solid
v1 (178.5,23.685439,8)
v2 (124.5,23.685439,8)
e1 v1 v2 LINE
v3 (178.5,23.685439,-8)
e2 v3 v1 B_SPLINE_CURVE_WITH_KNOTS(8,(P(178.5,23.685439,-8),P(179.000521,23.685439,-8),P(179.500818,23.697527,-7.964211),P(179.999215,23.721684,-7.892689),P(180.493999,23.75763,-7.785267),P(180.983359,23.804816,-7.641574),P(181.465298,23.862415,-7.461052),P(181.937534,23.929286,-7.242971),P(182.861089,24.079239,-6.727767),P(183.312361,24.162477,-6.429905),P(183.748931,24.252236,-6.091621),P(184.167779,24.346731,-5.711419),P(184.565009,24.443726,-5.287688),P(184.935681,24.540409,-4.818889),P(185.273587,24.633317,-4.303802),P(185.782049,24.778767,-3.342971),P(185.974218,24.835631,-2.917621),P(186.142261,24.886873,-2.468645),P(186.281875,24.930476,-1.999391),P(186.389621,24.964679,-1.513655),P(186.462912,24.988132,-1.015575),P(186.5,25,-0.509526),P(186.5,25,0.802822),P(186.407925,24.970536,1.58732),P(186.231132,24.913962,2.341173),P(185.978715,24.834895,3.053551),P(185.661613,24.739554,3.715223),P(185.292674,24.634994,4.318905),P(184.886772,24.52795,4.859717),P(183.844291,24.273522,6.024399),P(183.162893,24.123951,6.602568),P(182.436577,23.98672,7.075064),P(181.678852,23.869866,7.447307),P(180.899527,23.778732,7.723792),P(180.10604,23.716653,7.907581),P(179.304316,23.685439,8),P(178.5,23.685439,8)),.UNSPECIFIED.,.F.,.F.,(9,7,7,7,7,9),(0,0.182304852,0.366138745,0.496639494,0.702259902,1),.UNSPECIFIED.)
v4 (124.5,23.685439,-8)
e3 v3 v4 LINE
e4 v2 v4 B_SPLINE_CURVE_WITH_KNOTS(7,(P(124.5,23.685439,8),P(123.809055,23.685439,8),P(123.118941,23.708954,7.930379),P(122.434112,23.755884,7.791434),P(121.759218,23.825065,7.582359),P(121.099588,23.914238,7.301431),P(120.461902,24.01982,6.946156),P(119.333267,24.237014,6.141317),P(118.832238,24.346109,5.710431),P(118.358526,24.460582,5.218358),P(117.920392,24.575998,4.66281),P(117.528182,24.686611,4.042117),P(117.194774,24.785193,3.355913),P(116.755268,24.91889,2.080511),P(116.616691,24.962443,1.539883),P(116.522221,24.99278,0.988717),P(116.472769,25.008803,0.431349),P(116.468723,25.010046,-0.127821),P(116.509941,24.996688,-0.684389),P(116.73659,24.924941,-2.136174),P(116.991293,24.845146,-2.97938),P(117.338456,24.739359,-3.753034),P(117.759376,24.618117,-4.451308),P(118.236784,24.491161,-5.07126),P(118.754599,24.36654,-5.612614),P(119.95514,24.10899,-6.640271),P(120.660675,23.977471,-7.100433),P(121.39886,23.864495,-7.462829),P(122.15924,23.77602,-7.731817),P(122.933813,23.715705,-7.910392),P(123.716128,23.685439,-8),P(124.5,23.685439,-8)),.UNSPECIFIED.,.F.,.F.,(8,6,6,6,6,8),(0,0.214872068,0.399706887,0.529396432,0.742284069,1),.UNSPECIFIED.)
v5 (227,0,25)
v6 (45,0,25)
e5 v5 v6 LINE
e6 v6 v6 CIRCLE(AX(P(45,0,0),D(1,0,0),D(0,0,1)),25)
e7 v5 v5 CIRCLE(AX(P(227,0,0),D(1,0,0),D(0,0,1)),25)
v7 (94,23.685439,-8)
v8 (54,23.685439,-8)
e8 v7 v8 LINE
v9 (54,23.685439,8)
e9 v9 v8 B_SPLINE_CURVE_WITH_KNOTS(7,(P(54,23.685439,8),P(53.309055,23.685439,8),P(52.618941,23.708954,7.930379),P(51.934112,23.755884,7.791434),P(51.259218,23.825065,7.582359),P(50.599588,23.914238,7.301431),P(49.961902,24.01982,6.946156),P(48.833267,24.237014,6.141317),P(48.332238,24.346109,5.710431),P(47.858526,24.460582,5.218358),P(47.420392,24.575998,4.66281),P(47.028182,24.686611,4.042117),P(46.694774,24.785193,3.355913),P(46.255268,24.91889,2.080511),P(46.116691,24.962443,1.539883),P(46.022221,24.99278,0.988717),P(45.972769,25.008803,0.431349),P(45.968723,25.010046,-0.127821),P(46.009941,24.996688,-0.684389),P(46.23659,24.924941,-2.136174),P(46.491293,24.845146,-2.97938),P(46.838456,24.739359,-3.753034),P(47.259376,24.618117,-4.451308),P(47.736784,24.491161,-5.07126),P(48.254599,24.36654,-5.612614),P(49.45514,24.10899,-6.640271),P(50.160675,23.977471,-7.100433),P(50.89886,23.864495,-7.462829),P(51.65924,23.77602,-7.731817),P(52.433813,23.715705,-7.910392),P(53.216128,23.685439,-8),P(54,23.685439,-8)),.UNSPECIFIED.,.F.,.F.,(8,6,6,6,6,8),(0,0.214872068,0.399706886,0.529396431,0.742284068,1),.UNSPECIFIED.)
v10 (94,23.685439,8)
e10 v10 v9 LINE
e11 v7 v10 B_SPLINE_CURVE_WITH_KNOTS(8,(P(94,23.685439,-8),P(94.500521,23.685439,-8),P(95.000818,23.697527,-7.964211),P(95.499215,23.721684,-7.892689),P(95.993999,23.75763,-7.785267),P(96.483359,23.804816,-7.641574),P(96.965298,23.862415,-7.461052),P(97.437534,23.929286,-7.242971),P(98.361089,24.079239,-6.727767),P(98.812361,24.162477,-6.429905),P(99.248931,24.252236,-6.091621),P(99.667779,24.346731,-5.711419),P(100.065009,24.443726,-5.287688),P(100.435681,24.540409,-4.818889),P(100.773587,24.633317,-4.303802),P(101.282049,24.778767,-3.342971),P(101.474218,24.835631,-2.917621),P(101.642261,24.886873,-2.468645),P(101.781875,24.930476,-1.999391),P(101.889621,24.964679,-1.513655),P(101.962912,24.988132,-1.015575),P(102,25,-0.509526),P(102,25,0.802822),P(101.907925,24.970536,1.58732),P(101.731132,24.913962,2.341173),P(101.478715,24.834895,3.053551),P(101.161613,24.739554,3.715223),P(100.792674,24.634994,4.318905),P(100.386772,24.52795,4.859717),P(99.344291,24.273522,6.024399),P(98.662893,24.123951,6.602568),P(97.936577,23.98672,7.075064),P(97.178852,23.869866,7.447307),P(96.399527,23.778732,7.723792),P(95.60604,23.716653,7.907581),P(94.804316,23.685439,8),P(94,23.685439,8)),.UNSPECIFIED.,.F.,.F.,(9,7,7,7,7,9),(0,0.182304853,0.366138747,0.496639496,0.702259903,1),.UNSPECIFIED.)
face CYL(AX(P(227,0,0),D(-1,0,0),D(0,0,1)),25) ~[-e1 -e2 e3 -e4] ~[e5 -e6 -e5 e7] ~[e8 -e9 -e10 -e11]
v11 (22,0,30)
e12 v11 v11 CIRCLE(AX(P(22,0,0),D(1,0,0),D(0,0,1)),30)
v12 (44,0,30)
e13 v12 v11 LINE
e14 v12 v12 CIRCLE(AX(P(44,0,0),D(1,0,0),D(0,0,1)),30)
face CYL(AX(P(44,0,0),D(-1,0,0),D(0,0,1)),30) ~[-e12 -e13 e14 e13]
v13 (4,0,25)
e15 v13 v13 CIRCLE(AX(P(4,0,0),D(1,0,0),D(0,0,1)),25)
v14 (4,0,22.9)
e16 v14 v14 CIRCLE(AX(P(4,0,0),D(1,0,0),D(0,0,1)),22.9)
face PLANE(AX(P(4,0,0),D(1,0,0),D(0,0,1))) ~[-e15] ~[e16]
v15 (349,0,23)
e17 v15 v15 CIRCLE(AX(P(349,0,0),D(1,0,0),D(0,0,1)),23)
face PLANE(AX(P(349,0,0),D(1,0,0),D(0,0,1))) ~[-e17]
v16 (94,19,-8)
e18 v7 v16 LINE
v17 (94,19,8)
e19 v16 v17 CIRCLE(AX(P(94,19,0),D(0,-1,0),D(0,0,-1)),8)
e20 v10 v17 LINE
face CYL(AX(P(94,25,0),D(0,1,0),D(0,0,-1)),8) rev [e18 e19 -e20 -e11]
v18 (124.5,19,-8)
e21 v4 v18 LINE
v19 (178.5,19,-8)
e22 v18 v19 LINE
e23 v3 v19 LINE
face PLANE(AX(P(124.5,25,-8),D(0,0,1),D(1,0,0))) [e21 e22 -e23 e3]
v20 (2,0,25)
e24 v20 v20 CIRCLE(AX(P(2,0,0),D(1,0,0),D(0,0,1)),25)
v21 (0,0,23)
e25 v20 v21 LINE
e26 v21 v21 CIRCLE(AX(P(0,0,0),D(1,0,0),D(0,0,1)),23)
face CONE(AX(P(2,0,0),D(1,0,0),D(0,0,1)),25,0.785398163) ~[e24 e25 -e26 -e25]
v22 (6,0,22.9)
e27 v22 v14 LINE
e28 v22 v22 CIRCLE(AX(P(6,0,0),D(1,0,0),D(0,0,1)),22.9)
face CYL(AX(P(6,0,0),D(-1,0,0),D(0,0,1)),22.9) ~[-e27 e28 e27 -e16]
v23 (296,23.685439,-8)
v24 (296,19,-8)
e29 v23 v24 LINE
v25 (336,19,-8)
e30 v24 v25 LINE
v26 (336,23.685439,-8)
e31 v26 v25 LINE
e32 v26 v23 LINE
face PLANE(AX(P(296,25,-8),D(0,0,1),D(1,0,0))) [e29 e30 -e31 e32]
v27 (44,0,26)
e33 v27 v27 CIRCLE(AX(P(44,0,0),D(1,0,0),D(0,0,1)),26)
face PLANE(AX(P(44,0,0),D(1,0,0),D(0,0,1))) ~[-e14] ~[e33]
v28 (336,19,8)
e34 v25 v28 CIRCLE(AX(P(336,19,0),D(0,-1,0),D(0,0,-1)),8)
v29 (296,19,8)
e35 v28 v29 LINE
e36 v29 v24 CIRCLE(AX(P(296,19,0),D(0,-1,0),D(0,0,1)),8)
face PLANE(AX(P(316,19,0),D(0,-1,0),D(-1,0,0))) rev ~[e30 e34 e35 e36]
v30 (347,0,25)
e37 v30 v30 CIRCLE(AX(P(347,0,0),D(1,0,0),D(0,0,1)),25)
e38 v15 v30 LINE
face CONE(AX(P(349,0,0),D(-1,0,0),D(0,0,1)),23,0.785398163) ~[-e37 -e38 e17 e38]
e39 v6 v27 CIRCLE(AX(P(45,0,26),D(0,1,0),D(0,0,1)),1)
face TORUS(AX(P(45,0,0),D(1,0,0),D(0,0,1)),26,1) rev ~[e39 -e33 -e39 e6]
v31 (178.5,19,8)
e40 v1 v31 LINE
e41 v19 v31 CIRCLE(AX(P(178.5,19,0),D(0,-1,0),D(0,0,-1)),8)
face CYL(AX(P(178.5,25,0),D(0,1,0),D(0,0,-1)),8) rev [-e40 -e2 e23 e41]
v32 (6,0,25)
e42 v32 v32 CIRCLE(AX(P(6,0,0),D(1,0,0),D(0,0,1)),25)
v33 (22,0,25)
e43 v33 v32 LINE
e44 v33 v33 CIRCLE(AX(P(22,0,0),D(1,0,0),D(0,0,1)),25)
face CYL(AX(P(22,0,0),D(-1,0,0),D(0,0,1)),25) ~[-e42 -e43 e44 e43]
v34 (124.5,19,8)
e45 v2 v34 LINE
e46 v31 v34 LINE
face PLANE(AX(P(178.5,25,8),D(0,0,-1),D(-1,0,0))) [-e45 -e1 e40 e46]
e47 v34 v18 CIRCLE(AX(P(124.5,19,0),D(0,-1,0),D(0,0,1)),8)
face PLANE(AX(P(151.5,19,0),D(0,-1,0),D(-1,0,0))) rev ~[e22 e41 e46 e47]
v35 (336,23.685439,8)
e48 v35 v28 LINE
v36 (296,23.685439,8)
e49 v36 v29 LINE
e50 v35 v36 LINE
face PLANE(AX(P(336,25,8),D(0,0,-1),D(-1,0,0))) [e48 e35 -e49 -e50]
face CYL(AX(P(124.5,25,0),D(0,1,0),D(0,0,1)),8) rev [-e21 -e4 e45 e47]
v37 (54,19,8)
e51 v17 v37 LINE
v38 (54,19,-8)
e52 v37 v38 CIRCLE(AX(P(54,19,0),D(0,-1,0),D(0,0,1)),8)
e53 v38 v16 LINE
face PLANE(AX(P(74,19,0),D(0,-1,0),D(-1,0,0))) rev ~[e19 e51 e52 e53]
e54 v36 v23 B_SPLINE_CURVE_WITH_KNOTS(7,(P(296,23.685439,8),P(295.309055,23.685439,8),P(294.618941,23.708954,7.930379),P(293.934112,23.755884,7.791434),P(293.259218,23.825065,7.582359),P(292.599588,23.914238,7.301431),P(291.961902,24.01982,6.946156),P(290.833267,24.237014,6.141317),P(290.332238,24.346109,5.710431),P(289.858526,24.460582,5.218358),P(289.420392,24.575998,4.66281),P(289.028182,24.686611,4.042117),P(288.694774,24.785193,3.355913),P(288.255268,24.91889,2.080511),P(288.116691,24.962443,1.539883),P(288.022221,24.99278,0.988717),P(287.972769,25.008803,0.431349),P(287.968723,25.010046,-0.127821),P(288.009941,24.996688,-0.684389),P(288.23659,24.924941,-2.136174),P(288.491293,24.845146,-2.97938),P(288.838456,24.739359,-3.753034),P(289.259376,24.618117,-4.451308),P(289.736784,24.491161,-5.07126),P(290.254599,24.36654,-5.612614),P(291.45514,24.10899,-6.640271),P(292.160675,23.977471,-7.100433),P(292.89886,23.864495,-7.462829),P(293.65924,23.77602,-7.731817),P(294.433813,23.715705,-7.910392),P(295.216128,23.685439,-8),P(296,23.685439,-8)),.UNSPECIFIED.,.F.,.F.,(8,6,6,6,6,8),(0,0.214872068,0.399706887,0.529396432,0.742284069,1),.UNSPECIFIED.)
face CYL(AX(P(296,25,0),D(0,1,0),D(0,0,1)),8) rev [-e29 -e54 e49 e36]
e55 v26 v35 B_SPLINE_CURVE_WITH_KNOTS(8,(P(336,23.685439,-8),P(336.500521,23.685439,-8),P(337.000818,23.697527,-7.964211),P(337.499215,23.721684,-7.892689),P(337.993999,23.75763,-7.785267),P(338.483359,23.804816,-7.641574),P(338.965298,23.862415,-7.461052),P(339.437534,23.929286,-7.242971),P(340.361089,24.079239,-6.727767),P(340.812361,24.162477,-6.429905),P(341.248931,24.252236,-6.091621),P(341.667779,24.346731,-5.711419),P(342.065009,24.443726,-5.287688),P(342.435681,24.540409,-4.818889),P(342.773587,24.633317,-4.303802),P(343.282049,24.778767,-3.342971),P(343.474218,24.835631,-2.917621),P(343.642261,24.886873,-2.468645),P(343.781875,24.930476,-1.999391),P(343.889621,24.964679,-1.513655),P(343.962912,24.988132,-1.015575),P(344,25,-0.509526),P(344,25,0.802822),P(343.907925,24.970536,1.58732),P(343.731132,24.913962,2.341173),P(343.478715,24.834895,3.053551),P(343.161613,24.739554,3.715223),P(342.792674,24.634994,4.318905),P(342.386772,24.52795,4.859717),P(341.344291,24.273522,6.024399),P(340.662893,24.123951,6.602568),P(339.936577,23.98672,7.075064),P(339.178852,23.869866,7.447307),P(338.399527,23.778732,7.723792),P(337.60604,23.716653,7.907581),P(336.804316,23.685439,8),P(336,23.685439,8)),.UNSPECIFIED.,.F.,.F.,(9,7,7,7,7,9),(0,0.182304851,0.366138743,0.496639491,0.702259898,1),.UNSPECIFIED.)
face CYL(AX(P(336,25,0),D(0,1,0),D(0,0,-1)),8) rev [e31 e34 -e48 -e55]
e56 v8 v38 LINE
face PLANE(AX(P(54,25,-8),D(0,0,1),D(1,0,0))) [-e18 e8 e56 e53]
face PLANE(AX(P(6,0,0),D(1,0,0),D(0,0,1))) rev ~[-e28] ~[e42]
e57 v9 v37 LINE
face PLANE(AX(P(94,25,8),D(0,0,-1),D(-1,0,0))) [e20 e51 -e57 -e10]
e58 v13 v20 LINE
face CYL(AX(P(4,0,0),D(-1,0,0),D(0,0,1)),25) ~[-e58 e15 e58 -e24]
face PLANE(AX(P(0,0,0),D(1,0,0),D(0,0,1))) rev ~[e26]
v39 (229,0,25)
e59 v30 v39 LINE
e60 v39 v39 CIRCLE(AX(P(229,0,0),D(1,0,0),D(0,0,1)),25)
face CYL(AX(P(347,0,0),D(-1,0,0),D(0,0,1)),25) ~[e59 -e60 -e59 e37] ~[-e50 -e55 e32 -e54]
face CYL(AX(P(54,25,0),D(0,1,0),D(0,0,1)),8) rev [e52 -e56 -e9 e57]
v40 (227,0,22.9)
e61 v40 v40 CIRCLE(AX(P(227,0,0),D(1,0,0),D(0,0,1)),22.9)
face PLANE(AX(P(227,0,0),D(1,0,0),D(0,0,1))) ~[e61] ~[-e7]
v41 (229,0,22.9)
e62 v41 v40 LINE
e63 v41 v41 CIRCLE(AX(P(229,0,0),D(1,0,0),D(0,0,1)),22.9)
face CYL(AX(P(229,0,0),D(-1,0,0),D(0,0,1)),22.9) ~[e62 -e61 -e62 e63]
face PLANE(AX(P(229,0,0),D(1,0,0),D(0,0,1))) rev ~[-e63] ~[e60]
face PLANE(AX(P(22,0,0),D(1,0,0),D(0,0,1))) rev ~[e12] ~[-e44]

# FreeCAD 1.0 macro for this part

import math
import FreeCAD as App
import Part
import Sketcher

V = App.Vector
Q = App.Units.Quantity


def edges_at(feature, points):
    """Names of the edges that pass closest to the given points."""
    edges = feature.Shape.Edges
    near = lambda p: min(range(len(edges)), key=lambda i: edges[i].distToShape(Part.Vertex(*p))[0])
    return sorted({f"Edge{near(p) + 1}" for p in points})


def add_polygon(sketch, points):
    """Adds a closed chain of lines whose ends are joined by coincident constraints."""
    first, n = sketch.GeometryCount, len(points)
    for a, b in zip(points, points[1:] + points[:1]):
        sketch.addGeometry(Part.LineSegment(App.Vector(*a, 0), App.Vector(*b, 0)), False)
    for i in range(n):
        sketch.addConstraint(Sketcher.Constraint("Coincident", first + i, 2, first + (i + 1) % n, 1))

doc = App.newDocument("Part")
body = doc.addObject("PartDesign::Body", "Body")

sketch1 = body.newObject("Sketcher::SketchObject", "Sketch")
sketch1.AttachmentSupport = (doc.getObject("XY_Plane"), [""])
sketch1.MapMode = "FlatFace"
add_polygon(sketch1, [(0, 0), (349, 0), (349, 23), (347, 25), (229, 25), (229, 22.9), (227, 22.9), (227, 25), (44, 25), (44, 30), (22, 30), (22, 25), (6, 25), (6, 22.9), (4, 22.9), (4, 25), (2, 25), (0, 23)])
sketch1.addConstraint(Sketcher.Constraint("Horizontal", 0))
sketch1.addConstraint(Sketcher.Constraint("Vertical", 1))
sketch1.addConstraint(Sketcher.Constraint("Horizontal", 3))
sketch1.addConstraint(Sketcher.Constraint("Vertical", 4))
sketch1.addConstraint(Sketcher.Constraint("Horizontal", 5))
sketch1.addConstraint(Sketcher.Constraint("Vertical", 6))
sketch1.addConstraint(Sketcher.Constraint("Horizontal", 7))
sketch1.addConstraint(Sketcher.Constraint("Vertical", 8))
sketch1.addConstraint(Sketcher.Constraint("Horizontal", 9))
sketch1.addConstraint(Sketcher.Constraint("Vertical", 10))
sketch1.addConstraint(Sketcher.Constraint("Horizontal", 11))
sketch1.addConstraint(Sketcher.Constraint("Vertical", 12))
sketch1.addConstraint(Sketcher.Constraint("Horizontal", 13))
sketch1.addConstraint(Sketcher.Constraint("Vertical", 14))
sketch1.addConstraint(Sketcher.Constraint("Horizontal", 15))
sketch1.addConstraint(Sketcher.Constraint("Vertical", 17))
sketch1.addConstraint(Sketcher.Constraint("Coincident", 17, 2, -1, 1))
sketch1.addConstraint(Sketcher.Constraint("Perpendicular", 2, 16))
sketch1.addConstraint(Sketcher.Constraint("Horizontal", 3, 2, 6, 2))
sketch1.addConstraint(Sketcher.Constraint("Horizontal", 7, 2, 10, 2))
sketch1.addConstraint(Sketcher.Constraint("Horizontal", 5, 2, 12, 2))
sketch1.addConstraint(Sketcher.Constraint("Horizontal", 11, 2, 14, 2))
sketch1.addConstraint(Sketcher.Constraint("Horizontal", 1, 2, 16, 2))
sketch1.addConstraint(Sketcher.Constraint("Equal", 5, 13))
sketch1.addConstraint(Sketcher.Constraint("Equal", 13, 15))
sketch1.addConstraint(Sketcher.Constraint("Equal", 2, 16))
sketch1.addConstraint(Sketcher.Constraint("DistanceX", 0, 1, 0, 2, Q("349 mm")))
sketch1.addConstraint(Sketcher.Constraint("DistanceX", 3, 2, 3, 1, Q("118 mm")))
sketch1.addConstraint(Sketcher.Constraint("DistanceX", 5, 2, 5, 1, Q("2 mm")))
sketch1.addConstraint(Sketcher.Constraint("DistanceX", 7, 2, 7, 1, Q("183 mm")))
sketch1.addConstraint(Sketcher.Constraint("DistanceX", 9, 2, 9, 1, Q("22 mm")))
sketch1.addConstraint(Sketcher.Constraint("DistanceX", 11, 2, 11, 1, Q("16 mm")))
sketch1.addConstraint(Sketcher.Constraint("DistanceY", 1, 1, 1, 2, Q("23 mm")))
sketch1.addConstraint(Sketcher.Constraint("DistanceY", 8, 1, 8, 2, Q("5 mm")))
sketch1.addConstraint(Sketcher.Constraint("DistanceY", 4, 2, 4, 1, Q("2.1 mm")))
revolution = body.newObject("PartDesign::Revolution", "Revolution")
revolution.Profile = sketch1
revolution.ReferenceAxis = (sketch1, ["H_Axis"])
revolution.Angle = 360

sketch2 = body.newObject("Sketcher::SketchObject", "Sketch001")
sketch2.AttachmentSupport = (doc.getObject("XZ_Plane"), [""])
sketch2.MapMode = "FlatFace"
sketch2.AttachmentOffset = App.Placement(V(0, 0, -25), App.Rotation())
sketch2.addGeometry(Part.LineSegment(V(94, -8, 0), V(54, -8, 0)), False)
sketch2.addGeometry(Part.ArcOfCircle(Part.Circle(V(54, 0, 0), V(0, 0, 1), 8), math.radians(90), math.radians(270)), False)
sketch2.addGeometry(Part.LineSegment(V(54, 8, 0), V(94, 8, 0)), False)
sketch2.addGeometry(Part.ArcOfCircle(Part.Circle(V(94, 0, 0), V(0, 0, 1), 8), math.radians(-90), math.radians(90)), False)
sketch2.addConstraint(Sketcher.Constraint("Tangent", 0, 2, 1, 2))
sketch2.addConstraint(Sketcher.Constraint("Tangent", 1, 1, 2, 1))
sketch2.addConstraint(Sketcher.Constraint("Tangent", 2, 2, 3, 2))
sketch2.addConstraint(Sketcher.Constraint("Tangent", 3, 1, 0, 1))
sketch2.addConstraint(Sketcher.Constraint("Horizontal", 0))
sketch2.addConstraint(Sketcher.Constraint("Horizontal", 2))
sketch2.addConstraint(Sketcher.Constraint("PointOnObject", 1, 3, -1))
sketch2.addConstraint(Sketcher.Constraint("Radius", 1, Q("8 mm")))
sketch2.addConstraint(Sketcher.Constraint("DistanceX", 0, 2, 0, 1, Q("40 mm")))
sketch2.addConstraint(Sketcher.Constraint("DistanceX", -1, 1, 1, 3, Q("54 mm")))
pocket1 = body.newObject("PartDesign::Pocket", "Pocket")
pocket1.Profile = sketch2
pocket1.Length = 6
pocket1.Reversed = True

sketch3 = body.newObject("Sketcher::SketchObject", "Sketch002")
sketch3.AttachmentSupport = (doc.getObject("XZ_Plane"), [""])
sketch3.MapMode = "FlatFace"
sketch3.AttachmentOffset = App.Placement(V(0, 0, -25), App.Rotation())
sketch3.addGeometry(Part.LineSegment(V(178.5, -8, 0), V(124.5, -8, 0)), False)
sketch3.addGeometry(Part.ArcOfCircle(Part.Circle(V(124.5, 0, 0), V(0, 0, 1), 8), math.radians(90), math.radians(270)), False)
sketch3.addGeometry(Part.LineSegment(V(124.5, 8, 0), V(178.5, 8, 0)), False)
sketch3.addGeometry(Part.ArcOfCircle(Part.Circle(V(178.5, 0, 0), V(0, 0, 1), 8), math.radians(-90), math.radians(90)), False)
sketch3.addConstraint(Sketcher.Constraint("Tangent", 0, 2, 1, 2))
sketch3.addConstraint(Sketcher.Constraint("Tangent", 1, 1, 2, 1))
sketch3.addConstraint(Sketcher.Constraint("Tangent", 2, 2, 3, 2))
sketch3.addConstraint(Sketcher.Constraint("Tangent", 3, 1, 0, 1))
sketch3.addConstraint(Sketcher.Constraint("Horizontal", 0))
sketch3.addConstraint(Sketcher.Constraint("Horizontal", 2))
sketch3.addConstraint(Sketcher.Constraint("PointOnObject", 1, 3, -1))
sketch3.addConstraint(Sketcher.Constraint("Radius", 1, Q("8 mm")))
sketch3.addConstraint(Sketcher.Constraint("DistanceX", 0, 2, 0, 1, Q("54 mm")))
sketch3.addConstraint(Sketcher.Constraint("DistanceX", -1, 1, 1, 3, Q("124.5 mm")))
pocket2 = body.newObject("PartDesign::Pocket", "Pocket001")
pocket2.Profile = sketch3
pocket2.Length = 6
pocket2.Reversed = True
doc.recompute()

fillet = body.newObject("PartDesign::Fillet", "Fillet")
fillet.Base = (pocket2, edges_at(pocket2, [(44, 0, -25)]))
fillet.Radius = 1

sketch4 = body.newObject("Sketcher::SketchObject", "Sketch003")
sketch4.AttachmentSupport = (doc.getObject("XZ_Plane"), [""])
sketch4.MapMode = "FlatFace"
sketch4.AttachmentOffset = App.Placement(V(0, 0, -25), App.Rotation())
sketch4.addGeometry(Part.LineSegment(V(336, -8, 0), V(296, -8, 0)), False)
sketch4.addGeometry(Part.ArcOfCircle(Part.Circle(V(296, 0, 0), V(0, 0, 1), 8), math.radians(90), math.radians(270)), False)
sketch4.addGeometry(Part.LineSegment(V(296, 8, 0), V(336, 8, 0)), False)
sketch4.addGeometry(Part.ArcOfCircle(Part.Circle(V(336, 0, 0), V(0, 0, 1), 8), math.radians(-90), math.radians(90)), False)
sketch4.addConstraint(Sketcher.Constraint("Tangent", 0, 2, 1, 2))
sketch4.addConstraint(Sketcher.Constraint("Tangent", 1, 1, 2, 1))
sketch4.addConstraint(Sketcher.Constraint("Tangent", 2, 2, 3, 2))
sketch4.addConstraint(Sketcher.Constraint("Tangent", 3, 1, 0, 1))
sketch4.addConstraint(Sketcher.Constraint("Horizontal", 0))
sketch4.addConstraint(Sketcher.Constraint("Horizontal", 2))
sketch4.addConstraint(Sketcher.Constraint("PointOnObject", 1, 3, -1))
sketch4.addConstraint(Sketcher.Constraint("Radius", 1, Q("8 mm")))
sketch4.addConstraint(Sketcher.Constraint("DistanceX", 0, 2, 0, 1, Q("40 mm")))
sketch4.addConstraint(Sketcher.Constraint("DistanceX", -1, 1, 1, 3, Q("296 mm")))
pocket3 = body.newObject("PartDesign::Pocket", "Pocket002")
pocket3.Profile = sketch4
pocket3.Length = 6
pocket3.Reversed = True

doc.recompute()
